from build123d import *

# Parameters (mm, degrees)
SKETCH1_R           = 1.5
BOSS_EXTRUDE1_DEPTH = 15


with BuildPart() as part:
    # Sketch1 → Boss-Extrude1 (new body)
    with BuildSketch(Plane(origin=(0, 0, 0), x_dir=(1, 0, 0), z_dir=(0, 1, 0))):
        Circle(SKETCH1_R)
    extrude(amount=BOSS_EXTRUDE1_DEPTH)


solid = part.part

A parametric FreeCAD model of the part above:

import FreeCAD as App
import Part
import Sketcher

V = App.Vector
Q = App.Units.Quantity

doc = App.newDocument("Part")
params = doc.addObject("Spreadsheet::Sheet", "Params")
for row, (alias, value) in enumerate([
    ("sketch1_diameter", "3 mm"),
    ("pad1_length", "15 mm"),
], start=1):
    params.set(f"A{row}", alias)
    params.set(f"B{row}", "=" + value)
    params.setAlias(f"B{row}", alias)

body = doc.addObject("PartDesign::Body", "Body")

sketch1 = body.newObject("Sketcher::SketchObject", "Sketch")
sketch1.AttachmentSupport = (doc.getObject("XZ_Plane"), [""])
sketch1.MapMode = "FlatFace"
sketch1.addGeometry(Part.Circle(V(0, 0, 0), V(0, 0, 1), 1.5), False)
sketch1.addConstraint(Sketcher.Constraint("Coincident", 0, 3, -1, 1))
sketch1.addConstraint(Sketcher.Constraint("Diameter", 0, Q("3 mm")))
sketch1.setExpression("Constraints[1]", "Params.sketch1_diameter")
pad1 = body.newObject("PartDesign::Pad", "Pad")
pad1.Profile = sketch1
pad1.setExpression("Length", "Params.pad1_length")
pad1.Reversed = True

doc.recompute()
